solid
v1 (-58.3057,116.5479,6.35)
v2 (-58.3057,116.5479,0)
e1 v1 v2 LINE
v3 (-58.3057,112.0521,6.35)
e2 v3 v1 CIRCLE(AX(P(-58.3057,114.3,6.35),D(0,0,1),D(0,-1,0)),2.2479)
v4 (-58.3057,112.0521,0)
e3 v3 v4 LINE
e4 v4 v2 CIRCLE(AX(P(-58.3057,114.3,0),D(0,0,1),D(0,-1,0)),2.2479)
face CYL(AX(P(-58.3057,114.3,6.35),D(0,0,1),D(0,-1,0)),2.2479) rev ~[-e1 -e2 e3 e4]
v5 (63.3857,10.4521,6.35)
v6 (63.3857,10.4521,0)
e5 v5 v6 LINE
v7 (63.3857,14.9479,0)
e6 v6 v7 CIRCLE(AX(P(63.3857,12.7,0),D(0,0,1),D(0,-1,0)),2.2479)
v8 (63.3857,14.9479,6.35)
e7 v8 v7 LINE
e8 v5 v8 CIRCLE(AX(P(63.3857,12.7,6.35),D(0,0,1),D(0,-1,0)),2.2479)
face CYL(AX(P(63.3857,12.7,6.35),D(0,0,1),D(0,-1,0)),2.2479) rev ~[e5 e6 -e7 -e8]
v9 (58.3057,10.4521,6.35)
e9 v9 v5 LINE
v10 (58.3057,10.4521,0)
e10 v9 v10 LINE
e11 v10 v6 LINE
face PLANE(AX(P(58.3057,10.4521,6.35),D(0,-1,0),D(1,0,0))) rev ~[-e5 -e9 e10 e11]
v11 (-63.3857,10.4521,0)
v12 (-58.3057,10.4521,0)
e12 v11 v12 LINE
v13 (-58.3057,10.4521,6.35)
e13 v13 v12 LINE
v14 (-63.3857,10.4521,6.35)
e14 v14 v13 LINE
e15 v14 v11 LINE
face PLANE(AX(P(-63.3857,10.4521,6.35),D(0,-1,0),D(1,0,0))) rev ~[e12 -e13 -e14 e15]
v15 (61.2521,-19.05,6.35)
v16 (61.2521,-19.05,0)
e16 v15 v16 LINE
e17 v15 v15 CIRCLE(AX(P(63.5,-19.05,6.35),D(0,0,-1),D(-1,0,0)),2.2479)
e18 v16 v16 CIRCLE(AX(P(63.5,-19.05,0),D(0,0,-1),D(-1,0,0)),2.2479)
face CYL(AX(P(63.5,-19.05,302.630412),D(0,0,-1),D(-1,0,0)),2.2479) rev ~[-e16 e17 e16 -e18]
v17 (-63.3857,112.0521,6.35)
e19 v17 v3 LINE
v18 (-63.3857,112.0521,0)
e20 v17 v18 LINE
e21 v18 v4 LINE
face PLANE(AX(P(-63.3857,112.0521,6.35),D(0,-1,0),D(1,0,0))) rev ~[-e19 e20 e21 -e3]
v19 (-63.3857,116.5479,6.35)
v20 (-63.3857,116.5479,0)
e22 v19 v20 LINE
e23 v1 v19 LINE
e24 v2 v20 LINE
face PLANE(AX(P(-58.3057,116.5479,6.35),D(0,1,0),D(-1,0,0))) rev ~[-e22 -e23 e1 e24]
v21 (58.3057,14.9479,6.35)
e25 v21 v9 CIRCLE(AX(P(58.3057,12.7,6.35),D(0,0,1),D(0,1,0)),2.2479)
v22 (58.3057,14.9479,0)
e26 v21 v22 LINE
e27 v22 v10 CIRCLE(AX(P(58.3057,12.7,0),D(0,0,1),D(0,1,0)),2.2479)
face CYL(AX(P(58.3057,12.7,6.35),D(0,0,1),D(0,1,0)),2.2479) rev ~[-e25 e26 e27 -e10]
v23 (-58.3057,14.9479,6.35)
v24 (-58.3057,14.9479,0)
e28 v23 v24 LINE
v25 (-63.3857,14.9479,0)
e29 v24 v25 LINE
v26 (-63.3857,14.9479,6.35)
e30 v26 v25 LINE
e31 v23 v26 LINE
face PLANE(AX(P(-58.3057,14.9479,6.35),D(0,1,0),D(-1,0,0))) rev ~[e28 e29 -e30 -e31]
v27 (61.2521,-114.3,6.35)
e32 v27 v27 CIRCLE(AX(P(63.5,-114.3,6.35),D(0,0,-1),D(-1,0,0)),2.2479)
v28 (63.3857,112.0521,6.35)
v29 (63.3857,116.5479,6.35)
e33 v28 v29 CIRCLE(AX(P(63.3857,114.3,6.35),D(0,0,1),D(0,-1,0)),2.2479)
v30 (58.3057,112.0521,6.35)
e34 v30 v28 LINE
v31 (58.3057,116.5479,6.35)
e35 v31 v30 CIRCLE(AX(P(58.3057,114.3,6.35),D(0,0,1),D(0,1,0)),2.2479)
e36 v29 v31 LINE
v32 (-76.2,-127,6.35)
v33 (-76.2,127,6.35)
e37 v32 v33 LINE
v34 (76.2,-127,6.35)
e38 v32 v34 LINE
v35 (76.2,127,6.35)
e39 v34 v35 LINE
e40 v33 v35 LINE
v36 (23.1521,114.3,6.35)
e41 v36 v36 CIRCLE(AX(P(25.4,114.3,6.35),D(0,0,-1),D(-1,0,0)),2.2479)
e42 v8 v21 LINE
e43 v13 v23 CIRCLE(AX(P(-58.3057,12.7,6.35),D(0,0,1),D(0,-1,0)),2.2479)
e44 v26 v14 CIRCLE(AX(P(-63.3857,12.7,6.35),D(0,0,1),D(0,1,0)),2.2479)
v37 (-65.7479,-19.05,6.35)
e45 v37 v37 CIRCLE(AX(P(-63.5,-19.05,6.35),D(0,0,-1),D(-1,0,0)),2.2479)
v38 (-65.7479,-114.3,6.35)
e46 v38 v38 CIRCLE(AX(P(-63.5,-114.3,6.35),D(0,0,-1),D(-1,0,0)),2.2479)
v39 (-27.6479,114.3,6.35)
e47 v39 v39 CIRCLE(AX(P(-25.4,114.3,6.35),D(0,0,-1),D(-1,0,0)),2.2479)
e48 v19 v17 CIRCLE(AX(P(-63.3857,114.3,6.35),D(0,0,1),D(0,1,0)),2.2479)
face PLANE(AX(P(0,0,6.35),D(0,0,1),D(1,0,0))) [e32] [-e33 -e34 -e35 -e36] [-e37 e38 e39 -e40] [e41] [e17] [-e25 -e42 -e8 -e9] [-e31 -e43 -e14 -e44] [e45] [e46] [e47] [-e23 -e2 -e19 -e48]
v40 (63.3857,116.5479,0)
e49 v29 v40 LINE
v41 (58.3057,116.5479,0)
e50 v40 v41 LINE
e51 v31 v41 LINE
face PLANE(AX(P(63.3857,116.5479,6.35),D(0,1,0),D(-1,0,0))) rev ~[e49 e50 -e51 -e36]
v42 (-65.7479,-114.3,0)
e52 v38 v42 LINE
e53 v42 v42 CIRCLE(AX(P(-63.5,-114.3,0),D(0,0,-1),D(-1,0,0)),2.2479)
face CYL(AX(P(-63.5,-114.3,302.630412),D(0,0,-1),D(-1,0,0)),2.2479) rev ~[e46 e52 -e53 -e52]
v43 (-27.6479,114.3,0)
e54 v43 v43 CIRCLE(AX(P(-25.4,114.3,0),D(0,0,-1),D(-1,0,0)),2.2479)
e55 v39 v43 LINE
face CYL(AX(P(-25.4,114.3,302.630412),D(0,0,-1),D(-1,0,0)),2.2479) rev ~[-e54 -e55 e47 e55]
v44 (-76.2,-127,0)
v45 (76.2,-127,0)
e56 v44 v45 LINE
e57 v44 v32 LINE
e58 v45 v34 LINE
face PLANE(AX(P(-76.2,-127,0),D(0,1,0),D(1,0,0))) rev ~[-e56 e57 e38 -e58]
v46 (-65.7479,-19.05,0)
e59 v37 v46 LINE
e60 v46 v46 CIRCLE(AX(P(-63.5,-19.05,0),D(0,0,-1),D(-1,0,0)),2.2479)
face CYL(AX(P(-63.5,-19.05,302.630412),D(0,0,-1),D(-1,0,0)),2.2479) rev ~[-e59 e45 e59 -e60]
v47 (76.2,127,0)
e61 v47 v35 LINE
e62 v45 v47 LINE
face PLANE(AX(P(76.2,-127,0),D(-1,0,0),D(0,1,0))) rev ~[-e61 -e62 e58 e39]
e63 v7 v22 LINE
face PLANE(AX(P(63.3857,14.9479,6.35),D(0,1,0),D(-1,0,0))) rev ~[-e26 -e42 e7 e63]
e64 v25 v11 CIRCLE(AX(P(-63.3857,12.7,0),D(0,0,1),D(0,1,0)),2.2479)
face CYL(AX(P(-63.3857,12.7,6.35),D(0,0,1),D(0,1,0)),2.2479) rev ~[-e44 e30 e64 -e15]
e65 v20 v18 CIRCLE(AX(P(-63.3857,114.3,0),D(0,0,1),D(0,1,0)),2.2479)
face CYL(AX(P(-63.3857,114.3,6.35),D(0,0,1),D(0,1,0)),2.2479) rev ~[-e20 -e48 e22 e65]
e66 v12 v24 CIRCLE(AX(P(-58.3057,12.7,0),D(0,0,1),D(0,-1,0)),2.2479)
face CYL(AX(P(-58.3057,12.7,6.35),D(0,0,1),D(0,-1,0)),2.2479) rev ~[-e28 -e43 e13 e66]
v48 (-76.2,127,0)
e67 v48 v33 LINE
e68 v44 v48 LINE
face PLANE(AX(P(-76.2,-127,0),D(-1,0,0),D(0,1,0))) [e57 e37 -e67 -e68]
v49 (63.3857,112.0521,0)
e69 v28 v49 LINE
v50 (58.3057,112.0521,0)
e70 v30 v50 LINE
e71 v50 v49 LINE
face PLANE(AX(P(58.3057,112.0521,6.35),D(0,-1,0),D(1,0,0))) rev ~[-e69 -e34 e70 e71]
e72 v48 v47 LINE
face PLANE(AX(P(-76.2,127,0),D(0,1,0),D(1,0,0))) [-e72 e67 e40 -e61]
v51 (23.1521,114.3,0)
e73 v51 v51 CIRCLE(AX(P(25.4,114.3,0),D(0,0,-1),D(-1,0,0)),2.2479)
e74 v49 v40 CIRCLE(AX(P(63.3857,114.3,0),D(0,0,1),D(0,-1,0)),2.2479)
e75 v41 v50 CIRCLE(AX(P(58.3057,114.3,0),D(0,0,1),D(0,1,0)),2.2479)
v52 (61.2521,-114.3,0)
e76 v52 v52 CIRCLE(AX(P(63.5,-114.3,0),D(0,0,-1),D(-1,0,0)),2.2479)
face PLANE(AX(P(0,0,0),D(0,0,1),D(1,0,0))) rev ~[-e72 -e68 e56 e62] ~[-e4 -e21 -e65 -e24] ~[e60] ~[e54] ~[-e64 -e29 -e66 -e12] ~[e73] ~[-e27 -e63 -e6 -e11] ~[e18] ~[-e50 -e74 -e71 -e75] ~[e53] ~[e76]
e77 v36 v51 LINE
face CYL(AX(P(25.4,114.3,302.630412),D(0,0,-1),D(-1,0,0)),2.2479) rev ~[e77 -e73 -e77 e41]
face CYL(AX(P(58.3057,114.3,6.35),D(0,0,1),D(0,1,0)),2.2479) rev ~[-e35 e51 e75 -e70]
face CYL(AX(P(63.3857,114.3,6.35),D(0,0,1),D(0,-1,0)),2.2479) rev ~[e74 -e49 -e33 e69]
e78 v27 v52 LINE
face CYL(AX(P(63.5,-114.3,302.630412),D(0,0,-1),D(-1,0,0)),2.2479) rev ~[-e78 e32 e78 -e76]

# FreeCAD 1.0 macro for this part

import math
import FreeCAD as App
import Part
import Sketcher
Q = App.Units.Quantity

doc = App.newDocument("Part")
body = doc.addObject("PartDesign::Body", "Body")

sketch1 = body.newObject("Sketcher::SketchObject", "Sketch")
sketch1.AttachmentSupport = (doc.getObject("XY_Plane"), [""])
sketch1.MapMode = "FlatFace"
sketch1.addGeometry(Part.LineSegment(App.Vector(-76, 127, 0), App.Vector(-76, -127, 0)), False)
sketch1.addGeometry(Part.LineSegment(App.Vector(-76, -127, 0), App.Vector(76, -127, 0)), False)
sketch1.addGeometry(Part.LineSegment(App.Vector(76, -127, 0), App.Vector(76, 127, 0)), False)
sketch1.addGeometry(Part.LineSegment(App.Vector(76, 127, 0), App.Vector(-76, 127, 0)), False)
sketch1.addConstraint(Sketcher.Constraint("Coincident", 0, 2, 1, 1))
sketch1.addConstraint(Sketcher.Constraint("Coincident", 1, 2, 2, 1))
sketch1.addConstraint(Sketcher.Constraint("Coincident", 2, 2, 3, 1))
sketch1.addConstraint(Sketcher.Constraint("Coincident", 3, 2, 0, 1))
sketch1.addConstraint(Sketcher.Constraint("Vertical", 0))
sketch1.addConstraint(Sketcher.Constraint("Horizontal", 1))
sketch1.addConstraint(Sketcher.Constraint("Vertical", 2))
sketch1.addConstraint(Sketcher.Constraint("Horizontal", 3))
sketch1.addConstraint(Sketcher.Constraint("Symmetric", 0, 2, 2, 2, -1, 1))
sketch1.addConstraint(Sketcher.Constraint("DistanceX", 1, 1, 1, 2, Q("6 in")))
sketch1.addConstraint(Sketcher.Constraint("DistanceY", 0, 2, 0, 1, Q("10 in")))
pad1 = body.newObject("PartDesign::Pad", "Pad")
pad1.Profile = sketch1
pad1.Length = Q("0.25 in")

sketch2 = body.newObject("Sketcher::SketchObject", "Sketch001")
sketch2.AttachmentSupport = (doc.getObject("XY_Plane"), [""])
sketch2.MapMode = "FlatFace"
sketch2.AttachmentOffset = App.Placement(App.Vector(0, 0, 0.25 * 25.4), App.Rotation())
sketch2.addGeometry(Part.LineSegment(App.Vector(-58.3, 116.5, 0), App.Vector(-63.4, 116.5, 0)), False)
sketch2.addGeometry(Part.ArcOfCircle(Part.Circle(App.Vector(-63.4, 114.3, 0), App.Vector(0, 0, 1), 2.2), math.radians(90), math.radians(270)), False)
sketch2.addGeometry(Part.LineSegment(App.Vector(-63.4, 112.1, 0), App.Vector(-58.3, 112.1, 0)), False)
sketch2.addGeometry(Part.ArcOfCircle(Part.Circle(App.Vector(-58.3, 114.3, 0), App.Vector(0, 0, 1), 2.2), math.radians(-90), math.radians(90)), False)
sketch2.addGeometry(Part.LineSegment(App.Vector(63.4, 116.5, 0), App.Vector(58.3, 116.5, 0)), False)
sketch2.addGeometry(Part.ArcOfCircle(Part.Circle(App.Vector(58.3, 114.3, 0), App.Vector(0, 0, 1), 2.2), math.radians(90), math.radians(270)), False)
sketch2.addGeometry(Part.LineSegment(App.Vector(58.3, 112.1, 0), App.Vector(63.4, 112.1, 0)), False)
sketch2.addGeometry(Part.ArcOfCircle(Part.Circle(App.Vector(63.4, 114.3, 0), App.Vector(0, 0, 1), 2.2), math.radians(-90), math.radians(90)), False)
sketch2.addGeometry(Part.LineSegment(App.Vector(-58.3, 14.9, 0), App.Vector(-63.4, 14.9, 0)), False)
sketch2.addGeometry(Part.ArcOfCircle(Part.Circle(App.Vector(-63.4, 12.7, 0), App.Vector(0, 0, 1), 2.2), math.radians(90), math.radians(270)), False)
sketch2.addGeometry(Part.LineSegment(App.Vector(-63.4, 10.5, 0), App.Vector(-58.3, 10.5, 0)), False)
sketch2.addGeometry(Part.ArcOfCircle(Part.Circle(App.Vector(-58.3, 12.7, 0), App.Vector(0, 0, 1), 2.2), math.radians(-90), math.radians(90)), False)
sketch2.addGeometry(Part.LineSegment(App.Vector(63.4, 14.9, 0), App.Vector(58.3, 14.9, 0)), False)
sketch2.addGeometry(Part.ArcOfCircle(Part.Circle(App.Vector(58.3, 12.7, 0), App.Vector(0, 0, 1), 2.2), math.radians(90), math.radians(270)), False)
sketch2.addGeometry(Part.LineSegment(App.Vector(58.3, 10.5, 0), App.Vector(63.4, 10.5, 0)), False)
sketch2.addGeometry(Part.ArcOfCircle(Part.Circle(App.Vector(63.4, 12.7, 0), App.Vector(0, 0, 1), 2.2), math.radians(-90), math.radians(90)), False)
sketch2.addConstraint(Sketcher.Constraint("Tangent", 0, 2, 1, 1))
sketch2.addConstraint(Sketcher.Constraint("Tangent", 1, 2, 2, 1))
sketch2.addConstraint(Sketcher.Constraint("Tangent", 2, 2, 3, 1))
sketch2.addConstraint(Sketcher.Constraint("Tangent", 3, 2, 0, 1))
sketch2.addConstraint(Sketcher.Constraint("Tangent", 4, 2, 5, 1))
sketch2.addConstraint(Sketcher.Constraint("Tangent", 5, 2, 6, 1))
sketch2.addConstraint(Sketcher.Constraint("Tangent", 6, 2, 7, 1))
sketch2.addConstraint(Sketcher.Constraint("Tangent", 7, 2, 4, 1))
sketch2.addConstraint(Sketcher.Constraint("Tangent", 8, 2, 9, 1))
sketch2.addConstraint(Sketcher.Constraint("Tangent", 9, 2, 10, 1))
sketch2.addConstraint(Sketcher.Constraint("Tangent", 10, 2, 11, 1))
sketch2.addConstraint(Sketcher.Constraint("Tangent", 11, 2, 8, 1))
sketch2.addConstraint(Sketcher.Constraint("Tangent", 12, 2, 13, 1))
sketch2.addConstraint(Sketcher.Constraint("Tangent", 13, 2, 14, 1))
sketch2.addConstraint(Sketcher.Constraint("Tangent", 14, 2, 15, 1))
sketch2.addConstraint(Sketcher.Constraint("Tangent", 15, 2, 12, 1))
sketch2.addConstraint(Sketcher.Constraint("Horizontal", 0))
sketch2.addConstraint(Sketcher.Constraint("Horizontal", 2))
sketch2.addConstraint(Sketcher.Constraint("Horizontal", 4))
sketch2.addConstraint(Sketcher.Constraint("Horizontal", 6))
sketch2.addConstraint(Sketcher.Constraint("Horizontal", 8))
sketch2.addConstraint(Sketcher.Constraint("Horizontal", 10))
sketch2.addConstraint(Sketcher.Constraint("Horizontal", 12))
sketch2.addConstraint(Sketcher.Constraint("Horizontal", 14))
sketch2.addConstraint(Sketcher.Constraint("Equal", 3, 5))
sketch2.addConstraint(Sketcher.Constraint("Equal", 7, 9))
sketch2.addConstraint(Sketcher.Constraint("Equal", 11, 13))
sketch2.addConstraint(Sketcher.Constraint("Symmetric", 3, 3, 5, 3, -2))
sketch2.addConstraint(Sketcher.Constraint("Symmetric", 11, 3, 13, 3, -2))
sketch2.addConstraint(Sketcher.Constraint("Vertical", 1, 3, 9, 3))
sketch2.addConstraint(Sketcher.Constraint("Vertical", 3, 3, 11, 3))
sketch2.addConstraint(Sketcher.Constraint("Vertical", 7, 3, 15, 3))
sketch2.addConstraint(Sketcher.Constraint("Equal", 2, 4))
sketch2.addConstraint(Sketcher.Constraint("DistanceX", 0, 2, 0, 1, Q("0.2 in")))
sketch2.addConstraint(Sketcher.Constraint("DistanceY", 9, 3, 1, 3, Q("4 in")))
sketch2.addConstraint(Sketcher.Constraint("DistanceY", -1, 1, 1, 3, Q("4.5 in")))
sketch2.addConstraint(Sketcher.Constraint("Radius", 1, Q("0.0885 in")))
sketch2.addConstraint(Sketcher.Constraint("DistanceX", 3, 3, 5, 3, Q("4.591 in")))
pocket1 = body.newObject("PartDesign::Pocket", "Pocket")
pocket1.Profile = sketch2
pocket1.Length = Q("1 in")

sketch3 = body.newObject("Sketcher::SketchObject", "Sketch002")
sketch3.AttachmentSupport = (doc.getObject("XY_Plane"), [""])
sketch3.MapMode = "FlatFace"
sketch3.AttachmentOffset = App.Placement(App.Vector(0, 0, 0.25 * 25.4), App.Rotation())
sketch3.addGeometry(Part.Circle(App.Vector(-63.5, -19.1, 0), App.Vector(0, 0, 1), 2.2), False)
sketch3.addGeometry(Part.Circle(App.Vector(-63.5, -114.3, 0), App.Vector(0, 0, 1), 2.2), False)
sketch3.addGeometry(Part.Circle(App.Vector(63.5, -114.3, 0), App.Vector(0, 0, 1), 2.2), False)
sketch3.addGeometry(Part.Circle(App.Vector(63.5, -19.1, 0), App.Vector(0, 0, 1), 2.2), False)
sketch3.addGeometry(Part.Circle(App.Vector(-25.4, 114.3, 0), App.Vector(0, 0, 1), 2.2), False)
sketch3.addGeometry(Part.Circle(App.Vector(25.4, 114.3, 0), App.Vector(0, 0, 1), 2.2), False)
sketch3.addConstraint(Sketcher.Constraint("Equal", 0, 1))
sketch3.addConstraint(Sketcher.Constraint("Equal", 1, 2))
sketch3.addConstraint(Sketcher.Constraint("Equal", 2, 3))
sketch3.addConstraint(Sketcher.Constraint("Equal", 3, 4))
sketch3.addConstraint(Sketcher.Constraint("Equal", 4, 5))
sketch3.addConstraint(Sketcher.Constraint("Symmetric", 1, 3, 2, 3, -2))
sketch3.addConstraint(Sketcher.Constraint("Symmetric", 0, 3, 3, 3, -2))
sketch3.addConstraint(Sketcher.Constraint("Symmetric", 4, 3, 5, 3, -2))
sketch3.addConstraint(Sketcher.Constraint("Vertical", 0, 3, 1, 3))
sketch3.addConstraint(Sketcher.Constraint("Diameter", 0, Q("0.177 in")))
sketch3.addConstraint(Sketcher.Constraint("DistanceX", 4, 3, -1, 1, Q("1 in")))
sketch3.addConstraint(Sketcher.Constraint("DistanceX", 1, 3, 2, 3, Q("5 in")))
sketch3.addConstraint(Sketcher.Constraint("DistanceY", 1, 3, 4, 3, Q("9 in")))
sketch3.addConstraint(Sketcher.Constraint("DistanceY", 1, 3, -1, 1, Q("4.5 in")))
sketch3.addConstraint(Sketcher.Constraint("DistanceY", 0, 3, -1, 1, Q("0.75 in")))
doc.recompute()
hole = body.newObject("PartDesign::Hole", "Hole")
hole.Profile = sketch3
hole.ThreadType = "None"
hole.Diameter = Q("0.177 in")
hole.DepthType = "ThroughAll"

doc.recompute()
